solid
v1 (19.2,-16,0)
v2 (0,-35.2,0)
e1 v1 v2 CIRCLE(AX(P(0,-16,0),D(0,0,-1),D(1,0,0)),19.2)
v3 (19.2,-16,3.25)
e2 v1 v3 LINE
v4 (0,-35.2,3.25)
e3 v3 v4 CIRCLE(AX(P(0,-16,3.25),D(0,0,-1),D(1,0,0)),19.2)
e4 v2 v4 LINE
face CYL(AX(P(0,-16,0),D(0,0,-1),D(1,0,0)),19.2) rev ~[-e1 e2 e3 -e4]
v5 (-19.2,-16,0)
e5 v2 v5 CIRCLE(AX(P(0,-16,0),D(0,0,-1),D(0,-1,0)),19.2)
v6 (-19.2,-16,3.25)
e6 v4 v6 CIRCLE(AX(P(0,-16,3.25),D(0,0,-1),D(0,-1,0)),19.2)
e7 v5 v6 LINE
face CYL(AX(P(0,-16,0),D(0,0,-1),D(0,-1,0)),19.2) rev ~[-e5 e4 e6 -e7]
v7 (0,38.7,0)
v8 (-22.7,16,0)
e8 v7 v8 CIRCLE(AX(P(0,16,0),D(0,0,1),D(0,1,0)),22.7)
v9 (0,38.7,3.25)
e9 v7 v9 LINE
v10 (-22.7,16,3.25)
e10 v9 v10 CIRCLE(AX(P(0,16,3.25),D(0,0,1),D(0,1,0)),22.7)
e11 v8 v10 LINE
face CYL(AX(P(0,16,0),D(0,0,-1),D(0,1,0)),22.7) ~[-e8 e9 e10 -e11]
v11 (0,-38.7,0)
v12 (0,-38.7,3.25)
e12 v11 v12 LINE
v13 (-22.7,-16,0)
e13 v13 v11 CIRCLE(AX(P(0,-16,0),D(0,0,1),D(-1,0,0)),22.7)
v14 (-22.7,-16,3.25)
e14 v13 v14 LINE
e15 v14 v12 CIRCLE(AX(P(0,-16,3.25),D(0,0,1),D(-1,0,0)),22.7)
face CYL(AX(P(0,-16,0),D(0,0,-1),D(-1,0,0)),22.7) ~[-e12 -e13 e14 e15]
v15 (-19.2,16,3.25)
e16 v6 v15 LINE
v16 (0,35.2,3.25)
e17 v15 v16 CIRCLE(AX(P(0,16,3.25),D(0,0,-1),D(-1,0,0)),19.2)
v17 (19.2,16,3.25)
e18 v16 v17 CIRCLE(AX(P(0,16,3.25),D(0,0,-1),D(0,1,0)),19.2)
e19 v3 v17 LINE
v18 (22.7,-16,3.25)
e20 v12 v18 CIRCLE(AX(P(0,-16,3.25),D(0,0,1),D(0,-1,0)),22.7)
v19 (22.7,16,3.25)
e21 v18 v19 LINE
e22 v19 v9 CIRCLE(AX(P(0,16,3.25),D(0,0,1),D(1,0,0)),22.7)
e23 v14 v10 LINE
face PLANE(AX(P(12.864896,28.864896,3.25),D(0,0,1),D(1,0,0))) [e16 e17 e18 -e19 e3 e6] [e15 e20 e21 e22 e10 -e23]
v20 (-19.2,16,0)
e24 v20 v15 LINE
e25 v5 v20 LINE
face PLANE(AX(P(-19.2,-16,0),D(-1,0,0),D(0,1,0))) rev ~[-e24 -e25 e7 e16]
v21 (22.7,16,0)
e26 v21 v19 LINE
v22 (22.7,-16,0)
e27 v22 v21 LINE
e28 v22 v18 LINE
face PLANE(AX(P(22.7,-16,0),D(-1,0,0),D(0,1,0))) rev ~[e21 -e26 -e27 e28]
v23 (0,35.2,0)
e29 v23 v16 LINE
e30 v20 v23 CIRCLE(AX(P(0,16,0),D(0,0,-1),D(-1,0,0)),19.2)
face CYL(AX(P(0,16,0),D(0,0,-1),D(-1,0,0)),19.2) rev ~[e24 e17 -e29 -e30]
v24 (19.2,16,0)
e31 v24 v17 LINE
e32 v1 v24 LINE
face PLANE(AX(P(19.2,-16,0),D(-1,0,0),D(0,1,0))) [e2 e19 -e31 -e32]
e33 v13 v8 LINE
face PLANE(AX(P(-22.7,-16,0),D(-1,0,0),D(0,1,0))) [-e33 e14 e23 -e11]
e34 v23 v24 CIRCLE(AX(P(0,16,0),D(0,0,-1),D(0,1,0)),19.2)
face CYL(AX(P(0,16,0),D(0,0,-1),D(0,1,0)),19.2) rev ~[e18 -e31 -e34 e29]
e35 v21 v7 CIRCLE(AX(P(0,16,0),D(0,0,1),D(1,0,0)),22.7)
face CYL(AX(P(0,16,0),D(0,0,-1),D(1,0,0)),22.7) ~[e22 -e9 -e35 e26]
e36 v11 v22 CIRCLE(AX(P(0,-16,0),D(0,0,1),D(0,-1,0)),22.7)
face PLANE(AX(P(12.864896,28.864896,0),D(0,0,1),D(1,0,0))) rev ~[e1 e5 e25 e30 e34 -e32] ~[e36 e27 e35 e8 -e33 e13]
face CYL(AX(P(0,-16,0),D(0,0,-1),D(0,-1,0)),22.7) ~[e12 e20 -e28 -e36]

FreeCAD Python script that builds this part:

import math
import FreeCAD as App
import Part
import Sketcher

V = App.Vector
Q = App.Units.Quantity

doc = App.newDocument("Part")
body = doc.addObject("PartDesign::Body", "Body")

# Sketch on XY plane
sketch1 = body.newObject("Sketcher::SketchObject", "Sketch")
sketch1.AttachmentSupport = (doc.getObject("XY_Plane"), [""])
sketch1.MapMode = "FlatFace"
sketch1.addGeometry([
    Part.ArcOfCircle(Part.Circle(V(0, 16, 0), V(0, 0, 1), 22.7), math.radians(0), math.radians(90)),  # 0
    Part.ArcOfCircle(Part.Circle(V(0, 16, 0), V(0, 0, 1), 22.7), math.radians(90), math.radians(180)),  # 1
    Part.LineSegment(V(-22.7, 16, 0), V(-22.7, -16, 0)),  # 2
    Part.ArcOfCircle(Part.Circle(V(0, -16, 0), V(0, 0, 1), 22.7), math.radians(180), math.radians(270)),  # 3
    Part.ArcOfCircle(Part.Circle(V(0, -16, 0), V(0, 0, 1), 22.7), math.radians(-90), math.radians(0)),  # 4
    Part.LineSegment(V(22.7, -16, 0), V(22.7, 16, 0)),  # 5
    Part.ArcOfCircle(Part.Circle(V(0, 16, 0), V(0, 0, 1), 19.2), math.radians(0), math.radians(90)),  # 6
    Part.LineSegment(V(19.2, 16, 0), V(19.2, -16, 0)),  # 7
    Part.ArcOfCircle(Part.Circle(V(0, -16, 0), V(0, 0, 1), 19.2), math.radians(-90), math.radians(0)),  # 8
    Part.ArcOfCircle(Part.Circle(V(0, -16, 0), V(0, 0, 1), 19.2), math.radians(180), math.radians(270)),  # 9
    Part.LineSegment(V(-19.2, -16, 0), V(-19.2, 16, 0)),  # 10
    Part.ArcOfCircle(Part.Circle(V(0, 16, 0), V(0, 0, 1), 19.2), math.radians(90), math.radians(180)),  # 11
], False)
sketch1.addConstraint([
    Sketcher.Constraint("Tangent", 0, 2, 1, 1),
    Sketcher.Constraint("Tangent", 1, 2, 2, 1),
    Sketcher.Constraint("Tangent", 2, 2, 3, 1),
    Sketcher.Constraint("Tangent", 3, 2, 4, 1),
    Sketcher.Constraint("Tangent", 4, 2, 5, 1),
    Sketcher.Constraint("Tangent", 5, 2, 0, 1),
    Sketcher.Constraint("Tangent", 6, 1, 7, 1),
    Sketcher.Constraint("Tangent", 7, 2, 8, 2),
    Sketcher.Constraint("Tangent", 8, 1, 9, 2),
    Sketcher.Constraint("Tangent", 9, 1, 10, 1),
    Sketcher.Constraint("Tangent", 10, 2, 11, 2),
    Sketcher.Constraint("Tangent", 11, 1, 6, 2),
    Sketcher.Constraint("Vertical", 2),
    Sketcher.Constraint("Vertical", 5),
    Sketcher.Constraint("Vertical", 7),
    Sketcher.Constraint("Vertical", 10),
    Sketcher.Constraint("Coincident", 6, 3, 0, 3),
    Sketcher.Constraint("Coincident", 8, 3, 3, 3),
    Sketcher.Constraint("Equal", 0, 1),
    Sketcher.Constraint("Equal", 1, 3),
    Sketcher.Constraint("Equal", 8, 9),
    Sketcher.Constraint("Symmetric", 0, 3, 3, 3, -1, 1),
    Sketcher.Constraint("PointOnObject", 0, 2, -2),
    Sketcher.Constraint("PointOnObject", 3, 2, -2),
    Sketcher.Constraint("PointOnObject", 8, 1, -2),
    Sketcher.Constraint("PointOnObject", 11, 1, -2),
    Sketcher.Constraint("Radius", 0, Q("22.7 mm")),
    Sketcher.Constraint("Radius", 6, Q("19.2 mm")),
    Sketcher.Constraint("DistanceY", 2, 2, 2, 1, Q("32 mm")),
])
pad1 = body.newObject("PartDesign::Pad", "Pad")
pad1.Profile = sketch1
pad1.Length = 3.25

doc.recompute()
